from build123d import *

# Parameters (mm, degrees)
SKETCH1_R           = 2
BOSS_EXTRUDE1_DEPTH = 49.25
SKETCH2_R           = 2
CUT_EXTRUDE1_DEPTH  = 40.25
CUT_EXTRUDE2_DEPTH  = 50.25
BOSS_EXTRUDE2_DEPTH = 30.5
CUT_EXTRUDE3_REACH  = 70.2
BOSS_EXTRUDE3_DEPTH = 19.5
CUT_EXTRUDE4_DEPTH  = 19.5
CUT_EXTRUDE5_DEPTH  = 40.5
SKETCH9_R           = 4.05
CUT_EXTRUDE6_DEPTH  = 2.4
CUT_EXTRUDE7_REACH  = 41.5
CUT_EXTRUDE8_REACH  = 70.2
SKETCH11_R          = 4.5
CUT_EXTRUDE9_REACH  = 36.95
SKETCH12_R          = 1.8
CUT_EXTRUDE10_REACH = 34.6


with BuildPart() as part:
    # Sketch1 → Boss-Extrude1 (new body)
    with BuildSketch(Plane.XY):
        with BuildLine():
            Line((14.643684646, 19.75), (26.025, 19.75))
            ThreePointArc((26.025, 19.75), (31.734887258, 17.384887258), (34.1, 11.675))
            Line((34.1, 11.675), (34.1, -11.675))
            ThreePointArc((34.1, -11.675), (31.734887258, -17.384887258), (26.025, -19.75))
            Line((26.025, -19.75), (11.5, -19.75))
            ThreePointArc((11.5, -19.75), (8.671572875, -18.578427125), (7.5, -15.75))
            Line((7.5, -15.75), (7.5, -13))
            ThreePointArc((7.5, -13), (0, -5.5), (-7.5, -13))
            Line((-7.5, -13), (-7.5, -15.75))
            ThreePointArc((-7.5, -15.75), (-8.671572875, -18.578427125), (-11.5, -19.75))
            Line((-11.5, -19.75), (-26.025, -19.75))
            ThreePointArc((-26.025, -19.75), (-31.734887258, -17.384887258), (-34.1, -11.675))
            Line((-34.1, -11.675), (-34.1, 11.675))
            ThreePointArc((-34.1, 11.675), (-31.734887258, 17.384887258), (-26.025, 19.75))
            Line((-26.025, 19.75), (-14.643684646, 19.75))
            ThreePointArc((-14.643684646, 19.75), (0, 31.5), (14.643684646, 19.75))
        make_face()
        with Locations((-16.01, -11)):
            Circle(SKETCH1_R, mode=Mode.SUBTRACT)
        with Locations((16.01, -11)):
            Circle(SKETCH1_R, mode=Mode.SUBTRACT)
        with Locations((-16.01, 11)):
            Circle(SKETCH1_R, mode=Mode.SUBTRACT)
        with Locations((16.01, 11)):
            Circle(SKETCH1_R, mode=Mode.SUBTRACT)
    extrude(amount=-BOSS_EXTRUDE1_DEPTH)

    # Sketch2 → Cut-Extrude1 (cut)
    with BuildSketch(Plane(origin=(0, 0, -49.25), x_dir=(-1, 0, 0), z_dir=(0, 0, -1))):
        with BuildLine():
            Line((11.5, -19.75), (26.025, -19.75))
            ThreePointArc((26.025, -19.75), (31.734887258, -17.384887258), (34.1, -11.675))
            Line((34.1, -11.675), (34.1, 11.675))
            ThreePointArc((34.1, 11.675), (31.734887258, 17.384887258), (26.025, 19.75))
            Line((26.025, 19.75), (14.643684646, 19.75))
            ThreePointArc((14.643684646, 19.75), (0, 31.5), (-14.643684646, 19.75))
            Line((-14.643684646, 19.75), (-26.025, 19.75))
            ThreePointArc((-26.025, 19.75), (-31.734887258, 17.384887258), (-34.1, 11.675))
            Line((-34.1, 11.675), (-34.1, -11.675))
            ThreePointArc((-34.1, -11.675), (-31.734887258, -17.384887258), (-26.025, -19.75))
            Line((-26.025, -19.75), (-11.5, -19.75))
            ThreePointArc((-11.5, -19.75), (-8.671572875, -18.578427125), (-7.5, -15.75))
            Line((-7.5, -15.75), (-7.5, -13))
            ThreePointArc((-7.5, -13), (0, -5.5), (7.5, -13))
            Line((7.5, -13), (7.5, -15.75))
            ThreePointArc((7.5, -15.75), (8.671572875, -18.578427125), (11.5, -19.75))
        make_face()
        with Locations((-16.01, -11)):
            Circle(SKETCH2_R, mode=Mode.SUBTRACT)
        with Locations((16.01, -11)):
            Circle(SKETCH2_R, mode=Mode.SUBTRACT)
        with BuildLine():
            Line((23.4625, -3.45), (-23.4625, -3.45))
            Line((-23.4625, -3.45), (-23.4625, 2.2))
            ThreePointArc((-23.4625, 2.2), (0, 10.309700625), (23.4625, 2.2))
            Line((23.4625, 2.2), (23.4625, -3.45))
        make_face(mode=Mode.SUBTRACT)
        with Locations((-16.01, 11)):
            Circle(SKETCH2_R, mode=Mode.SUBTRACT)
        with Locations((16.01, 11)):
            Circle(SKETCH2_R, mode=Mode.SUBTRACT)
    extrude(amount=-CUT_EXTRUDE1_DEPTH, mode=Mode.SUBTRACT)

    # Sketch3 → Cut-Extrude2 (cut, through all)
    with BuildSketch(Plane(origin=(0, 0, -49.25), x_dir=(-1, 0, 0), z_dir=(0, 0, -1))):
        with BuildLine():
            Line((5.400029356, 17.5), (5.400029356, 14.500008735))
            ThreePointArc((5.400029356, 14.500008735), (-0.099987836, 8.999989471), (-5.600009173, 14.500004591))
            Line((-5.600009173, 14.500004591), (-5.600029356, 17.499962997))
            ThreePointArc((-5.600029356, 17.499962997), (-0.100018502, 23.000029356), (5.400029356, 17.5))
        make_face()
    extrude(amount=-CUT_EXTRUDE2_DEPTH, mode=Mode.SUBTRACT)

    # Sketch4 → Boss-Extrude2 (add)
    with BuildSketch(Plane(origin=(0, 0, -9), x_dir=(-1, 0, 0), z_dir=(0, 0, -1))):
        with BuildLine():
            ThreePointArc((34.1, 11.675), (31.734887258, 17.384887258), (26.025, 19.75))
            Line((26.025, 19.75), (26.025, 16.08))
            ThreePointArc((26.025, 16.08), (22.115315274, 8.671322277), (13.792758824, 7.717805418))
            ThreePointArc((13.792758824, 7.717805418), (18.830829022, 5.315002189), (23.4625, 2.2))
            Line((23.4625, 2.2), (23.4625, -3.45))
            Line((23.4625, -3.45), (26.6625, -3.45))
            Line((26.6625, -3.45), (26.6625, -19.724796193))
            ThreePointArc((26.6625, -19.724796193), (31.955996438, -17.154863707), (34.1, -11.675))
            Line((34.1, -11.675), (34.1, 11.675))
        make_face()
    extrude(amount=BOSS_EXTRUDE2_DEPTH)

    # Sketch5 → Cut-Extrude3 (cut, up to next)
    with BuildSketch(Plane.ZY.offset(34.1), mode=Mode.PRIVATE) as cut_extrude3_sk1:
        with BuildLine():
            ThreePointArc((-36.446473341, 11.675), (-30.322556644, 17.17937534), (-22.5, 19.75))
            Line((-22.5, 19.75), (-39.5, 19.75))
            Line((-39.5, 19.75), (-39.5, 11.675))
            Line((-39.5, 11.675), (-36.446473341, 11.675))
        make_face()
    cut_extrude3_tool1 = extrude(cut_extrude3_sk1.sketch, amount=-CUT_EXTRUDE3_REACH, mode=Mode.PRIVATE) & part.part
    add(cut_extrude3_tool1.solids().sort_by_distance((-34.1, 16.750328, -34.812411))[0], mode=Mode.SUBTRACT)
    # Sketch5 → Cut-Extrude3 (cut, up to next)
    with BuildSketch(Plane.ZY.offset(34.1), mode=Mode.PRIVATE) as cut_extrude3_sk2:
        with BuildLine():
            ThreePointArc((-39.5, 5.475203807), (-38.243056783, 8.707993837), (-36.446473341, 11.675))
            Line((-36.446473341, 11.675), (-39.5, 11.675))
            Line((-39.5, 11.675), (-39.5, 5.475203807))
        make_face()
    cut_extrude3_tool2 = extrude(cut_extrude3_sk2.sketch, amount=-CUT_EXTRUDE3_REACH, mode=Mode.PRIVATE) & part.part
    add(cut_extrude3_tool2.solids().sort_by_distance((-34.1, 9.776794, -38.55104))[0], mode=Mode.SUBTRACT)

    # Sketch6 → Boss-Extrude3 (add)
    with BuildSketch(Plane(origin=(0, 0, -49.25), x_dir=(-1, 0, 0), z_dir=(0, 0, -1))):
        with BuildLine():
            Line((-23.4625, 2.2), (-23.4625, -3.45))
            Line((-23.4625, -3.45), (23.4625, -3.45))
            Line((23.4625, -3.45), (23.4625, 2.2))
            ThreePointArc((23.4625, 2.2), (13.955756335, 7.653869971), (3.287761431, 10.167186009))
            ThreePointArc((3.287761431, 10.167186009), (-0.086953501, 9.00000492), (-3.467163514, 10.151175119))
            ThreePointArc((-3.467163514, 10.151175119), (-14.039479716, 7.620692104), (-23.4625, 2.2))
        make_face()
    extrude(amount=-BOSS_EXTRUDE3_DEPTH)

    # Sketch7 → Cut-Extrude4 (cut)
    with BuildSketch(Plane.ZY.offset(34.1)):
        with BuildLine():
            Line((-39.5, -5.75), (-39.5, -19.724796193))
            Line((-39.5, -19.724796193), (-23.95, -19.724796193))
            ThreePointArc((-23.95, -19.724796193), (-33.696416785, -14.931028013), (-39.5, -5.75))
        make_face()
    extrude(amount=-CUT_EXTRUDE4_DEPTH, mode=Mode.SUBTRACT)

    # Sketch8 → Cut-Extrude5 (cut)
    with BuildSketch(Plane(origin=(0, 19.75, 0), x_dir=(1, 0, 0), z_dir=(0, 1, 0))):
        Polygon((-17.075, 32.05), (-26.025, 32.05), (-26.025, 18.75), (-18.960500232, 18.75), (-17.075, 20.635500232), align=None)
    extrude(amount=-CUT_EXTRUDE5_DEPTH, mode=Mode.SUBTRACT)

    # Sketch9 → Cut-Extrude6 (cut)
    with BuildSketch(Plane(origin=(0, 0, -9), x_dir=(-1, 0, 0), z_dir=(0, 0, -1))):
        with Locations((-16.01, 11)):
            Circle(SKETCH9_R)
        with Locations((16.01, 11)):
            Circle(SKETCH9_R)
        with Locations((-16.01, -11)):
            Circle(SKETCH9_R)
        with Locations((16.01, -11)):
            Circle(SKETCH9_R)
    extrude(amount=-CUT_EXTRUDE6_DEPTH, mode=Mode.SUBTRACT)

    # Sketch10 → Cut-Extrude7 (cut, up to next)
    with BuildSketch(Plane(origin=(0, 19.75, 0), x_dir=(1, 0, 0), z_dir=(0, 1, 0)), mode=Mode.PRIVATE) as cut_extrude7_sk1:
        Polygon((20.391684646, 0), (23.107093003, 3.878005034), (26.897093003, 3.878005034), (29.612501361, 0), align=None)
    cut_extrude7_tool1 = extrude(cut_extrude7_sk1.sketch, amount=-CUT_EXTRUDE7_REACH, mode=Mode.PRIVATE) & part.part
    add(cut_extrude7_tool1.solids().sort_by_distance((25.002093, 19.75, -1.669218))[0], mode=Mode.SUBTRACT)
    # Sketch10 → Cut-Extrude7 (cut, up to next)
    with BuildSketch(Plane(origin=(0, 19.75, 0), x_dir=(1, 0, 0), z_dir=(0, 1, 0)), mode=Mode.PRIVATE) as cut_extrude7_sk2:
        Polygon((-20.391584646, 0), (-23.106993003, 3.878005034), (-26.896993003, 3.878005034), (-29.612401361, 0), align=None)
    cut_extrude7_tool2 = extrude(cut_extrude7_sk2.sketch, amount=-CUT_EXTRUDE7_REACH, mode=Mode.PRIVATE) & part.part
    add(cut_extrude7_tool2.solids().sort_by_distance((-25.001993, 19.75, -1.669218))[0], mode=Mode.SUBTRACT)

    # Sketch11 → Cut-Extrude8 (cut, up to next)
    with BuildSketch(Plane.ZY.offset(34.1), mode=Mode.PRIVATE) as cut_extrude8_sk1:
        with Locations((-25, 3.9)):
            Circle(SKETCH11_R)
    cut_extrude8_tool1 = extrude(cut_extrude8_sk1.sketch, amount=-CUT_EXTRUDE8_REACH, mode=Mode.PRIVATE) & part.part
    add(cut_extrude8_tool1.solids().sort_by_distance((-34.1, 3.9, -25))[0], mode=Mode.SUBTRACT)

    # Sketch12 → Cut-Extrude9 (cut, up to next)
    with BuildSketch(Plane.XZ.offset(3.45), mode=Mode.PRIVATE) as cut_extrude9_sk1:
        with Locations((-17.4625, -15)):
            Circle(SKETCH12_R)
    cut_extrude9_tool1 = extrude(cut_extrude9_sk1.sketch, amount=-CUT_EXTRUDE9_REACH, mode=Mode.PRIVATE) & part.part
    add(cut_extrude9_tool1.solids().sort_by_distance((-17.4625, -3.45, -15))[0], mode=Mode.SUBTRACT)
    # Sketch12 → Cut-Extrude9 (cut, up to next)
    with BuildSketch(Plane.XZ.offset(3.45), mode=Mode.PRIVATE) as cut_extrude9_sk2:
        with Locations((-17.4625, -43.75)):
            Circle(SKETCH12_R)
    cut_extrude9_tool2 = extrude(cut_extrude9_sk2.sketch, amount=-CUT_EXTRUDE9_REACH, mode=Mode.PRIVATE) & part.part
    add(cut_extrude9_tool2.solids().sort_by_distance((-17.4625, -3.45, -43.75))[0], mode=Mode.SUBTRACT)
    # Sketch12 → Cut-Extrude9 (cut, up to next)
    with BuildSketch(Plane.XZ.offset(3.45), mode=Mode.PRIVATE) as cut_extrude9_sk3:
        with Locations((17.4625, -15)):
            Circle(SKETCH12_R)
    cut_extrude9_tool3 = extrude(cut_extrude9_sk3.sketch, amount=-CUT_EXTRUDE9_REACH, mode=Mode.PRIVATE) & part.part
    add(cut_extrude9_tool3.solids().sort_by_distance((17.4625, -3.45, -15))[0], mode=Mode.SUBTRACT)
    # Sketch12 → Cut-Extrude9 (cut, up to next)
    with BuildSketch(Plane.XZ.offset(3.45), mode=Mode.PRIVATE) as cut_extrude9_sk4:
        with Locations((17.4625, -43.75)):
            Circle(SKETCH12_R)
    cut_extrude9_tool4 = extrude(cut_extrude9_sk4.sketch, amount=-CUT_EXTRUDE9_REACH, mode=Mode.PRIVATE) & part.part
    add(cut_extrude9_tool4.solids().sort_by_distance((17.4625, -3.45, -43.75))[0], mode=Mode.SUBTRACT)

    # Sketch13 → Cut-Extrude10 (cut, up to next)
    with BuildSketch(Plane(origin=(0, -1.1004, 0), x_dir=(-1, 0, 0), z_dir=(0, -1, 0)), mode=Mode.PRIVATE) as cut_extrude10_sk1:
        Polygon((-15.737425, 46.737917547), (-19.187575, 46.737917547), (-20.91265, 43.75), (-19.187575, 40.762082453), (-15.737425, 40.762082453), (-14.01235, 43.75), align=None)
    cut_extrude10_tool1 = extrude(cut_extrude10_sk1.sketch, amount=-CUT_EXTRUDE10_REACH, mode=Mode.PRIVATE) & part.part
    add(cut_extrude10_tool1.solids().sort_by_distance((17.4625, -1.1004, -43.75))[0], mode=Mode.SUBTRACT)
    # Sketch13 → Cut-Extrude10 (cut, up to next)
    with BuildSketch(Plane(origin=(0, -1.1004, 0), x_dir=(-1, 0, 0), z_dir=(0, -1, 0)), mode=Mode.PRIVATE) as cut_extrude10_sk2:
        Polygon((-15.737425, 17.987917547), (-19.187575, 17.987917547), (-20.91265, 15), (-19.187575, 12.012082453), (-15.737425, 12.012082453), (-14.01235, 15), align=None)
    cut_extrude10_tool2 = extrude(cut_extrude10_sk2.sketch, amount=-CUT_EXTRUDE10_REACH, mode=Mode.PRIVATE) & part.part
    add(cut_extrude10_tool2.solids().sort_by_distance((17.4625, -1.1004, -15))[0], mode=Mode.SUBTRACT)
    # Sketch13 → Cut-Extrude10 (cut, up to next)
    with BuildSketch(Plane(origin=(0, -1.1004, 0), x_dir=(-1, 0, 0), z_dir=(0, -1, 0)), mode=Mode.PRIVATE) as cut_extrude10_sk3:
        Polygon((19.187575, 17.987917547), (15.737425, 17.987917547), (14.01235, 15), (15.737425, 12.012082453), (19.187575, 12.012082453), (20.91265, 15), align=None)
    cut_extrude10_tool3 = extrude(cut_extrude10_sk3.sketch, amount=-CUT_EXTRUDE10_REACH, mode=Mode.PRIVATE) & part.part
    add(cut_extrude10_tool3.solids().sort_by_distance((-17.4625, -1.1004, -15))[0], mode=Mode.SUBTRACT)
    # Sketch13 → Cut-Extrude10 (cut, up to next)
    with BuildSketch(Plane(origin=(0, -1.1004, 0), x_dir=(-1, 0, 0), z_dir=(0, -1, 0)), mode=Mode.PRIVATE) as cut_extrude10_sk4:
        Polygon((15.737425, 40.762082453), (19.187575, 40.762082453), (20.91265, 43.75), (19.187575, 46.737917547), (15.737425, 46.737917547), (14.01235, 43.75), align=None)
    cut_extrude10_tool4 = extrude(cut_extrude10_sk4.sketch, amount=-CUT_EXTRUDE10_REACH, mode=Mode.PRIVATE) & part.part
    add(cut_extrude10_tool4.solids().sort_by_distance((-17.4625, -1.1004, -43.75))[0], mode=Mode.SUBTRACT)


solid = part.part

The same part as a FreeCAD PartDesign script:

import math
import FreeCAD as App
import Part
import Sketcher
from FreeCAD import Vector
Q = App.Units.Quantity

doc = App.newDocument("Part")
body = doc.addObject("PartDesign::Body", "Body")

sketch1 = doc.addObject("Sketcher::SketchObject", "Sketch")
body.addObject(sketch1)
sketch1.AttachmentSupport = (doc.XY_Plane, [""])
sketch1.MapMode = "FlatFace"
sketch1.addGeometry([
    Part.LineSegment(Vector(26, 19.8, 0), Vector(14.6, 19.8, 0)),
    Part.ArcOfCircle(Part.Circle(Vector(0, 16.5, 0), Vector(0, 0, 1), 15), math.radians(13), math.radians(167)),
    Part.LineSegment(Vector(-14.6, 19.8, 0), Vector(-26, 19.8, 0)),
    Part.ArcOfCircle(Part.Circle(Vector(-26, 11.7, 0), Vector(0, 0, 1), 8.1), math.radians(90), math.radians(180)),
    Part.LineSegment(Vector(-34.1, 11.7, 0), Vector(-34.1, -11.7, 0)),
    Part.ArcOfCircle(Part.Circle(Vector(-26, -11.7, 0), Vector(0, 0, 1), 8.1), math.radians(180), math.radians(270)),
    Part.LineSegment(Vector(-26, -19.8, 0), Vector(-11.5, -19.8, 0)),
    Part.ArcOfCircle(Part.Circle(Vector(-11.5, -15.8, 0), Vector(0, 0, 1), 4), math.radians(-90), math.radians(0)),
    Part.LineSegment(Vector(-7.5, -15.8, 0), Vector(-7.5, -13, 0)),
    Part.ArcOfCircle(Part.Circle(Vector(0, -13, 0), Vector(0, 0, 1), 7.5), math.radians(0), math.radians(180)),
    Part.LineSegment(Vector(7.5, -13, 0), Vector(7.5, -15.8, 0)),
    Part.ArcOfCircle(Part.Circle(Vector(11.5, -15.8, 0), Vector(0, 0, 1), 4), math.radians(180), math.radians(270)),
    Part.LineSegment(Vector(11.5, -19.8, 0), Vector(26, -19.8, 0)),
    Part.ArcOfCircle(Part.Circle(Vector(26, -11.7, 0), Vector(0, 0, 1), 8.1), math.radians(-90), math.radians(0)),
    Part.LineSegment(Vector(34.1, -11.7, 0), Vector(34.1, 11.7, 0)),
    Part.ArcOfCircle(Part.Circle(Vector(26, 11.7, 0), Vector(0, 0, 1), 8.1), math.radians(0), math.radians(90)),
    Part.Circle(Vector(16, -11, 0), Vector(0, 0, 1), 2),
    Part.Circle(Vector(-16, -11, 0), Vector(0, 0, 1), 2),
    Part.Circle(Vector(16, 11, 0), Vector(0, 0, 1), 2),
    Part.Circle(Vector(-16, 11, 0), Vector(0, 0, 1), 2),
], False)
sketch1.addConstraint([
    Sketcher.Constraint("Coincident", 0, 2, 1, 1),
    Sketcher.Constraint("Coincident", 1, 2, 2, 1),
    Sketcher.Constraint("Tangent", 2, 2, 3, 1),
    Sketcher.Constraint("Tangent", 3, 2, 4, 1),
    Sketcher.Constraint("Tangent", 4, 2, 5, 1),
    Sketcher.Constraint("Tangent", 5, 2, 6, 1),
    Sketcher.Constraint("Tangent", 6, 2, 7, 1),
    Sketcher.Constraint("Tangent", 7, 2, 8, 1),
    Sketcher.Constraint("Tangent", 8, 2, 9, 2),
    Sketcher.Constraint("Tangent", 9, 1, 10, 1),
    Sketcher.Constraint("Tangent", 10, 2, 11, 1),
    Sketcher.Constraint("Tangent", 11, 2, 12, 1),
    Sketcher.Constraint("Tangent", 12, 2, 13, 1),
    Sketcher.Constraint("Tangent", 13, 2, 14, 1),
    Sketcher.Constraint("Tangent", 14, 2, 15, 1),
    Sketcher.Constraint("Tangent", 15, 2, 0, 1),
    Sketcher.Constraint("Horizontal", 0),
    Sketcher.Constraint("Horizontal", 2),
    Sketcher.Constraint("Vertical", 4),
    Sketcher.Constraint("Horizontal", 6),
    Sketcher.Constraint("Vertical", 8),
    Sketcher.Constraint("Vertical", 10),
    Sketcher.Constraint("Horizontal", 12),
    Sketcher.Constraint("Vertical", 14),
    Sketcher.Constraint("Equal", 3, 5),
    Sketcher.Constraint("Equal", 7, 11),
    Sketcher.Constraint("Equal", 5, 13),
    Sketcher.Constraint("Equal", 13, 15),
    Sketcher.Constraint("Equal", 16, 17),
    Sketcher.Constraint("Equal", 17, 18),
    Sketcher.Constraint("Equal", 18, 19),
    Sketcher.Constraint("Symmetric", 3, 3, 13, 3, -1, 1),
    Sketcher.Constraint("Symmetric", 17, 3, 18, 3, -1, 1),
    Sketcher.Constraint("Symmetric", 16, 3, 19, 3, -1, 1),
    Sketcher.Constraint("Symmetric", 7, 3, 11, 3, -2),
    Sketcher.Constraint("Symmetric", 16, 3, 17, 3, -2),
    Sketcher.Constraint("Symmetric", 0, 2, 1, 2, -2),
    Sketcher.Constraint("Diameter", 16, 4.0),
    Sketcher.Constraint("Radius", 1, 15.0),
    Sketcher.Constraint("Radius", 7, 4.0),
    Sketcher.Constraint("Radius", 9, 7.5),
    Sketcher.Constraint("DistanceY", 9, 3, -1, 1, 13.0),
    Sketcher.Constraint("DistanceY", 16, 3, -1, 1, 11.0),
    Sketcher.Constraint("Radius", 3, 8.075),
    Sketcher.Constraint("DistanceY", 4, 2, 4, 1, 23.35),
    Sketcher.Constraint("DistanceY", -1, 1, 1, 3, 16.5),
    Sketcher.Constraint("DistanceX", 3, 2, -1, 1, 34.1),
    Sketcher.Constraint("DistanceX", -1, 1, 16, 3, 16.01),
])
pad1 = doc.addObject("PartDesign::Pad", "Pad")
body.addObject(pad1)
pad1.Profile = sketch1
pad1.Length = 49.25
pad1.Reversed = True

sketch2 = doc.addObject("Sketcher::SketchObject", "Sketch001")
body.addObject(sketch2)
sketch2.AttachmentSupport = (doc.XY_Plane, [""])
sketch2.MapMode = "FlatFace"
sketch2.AttachmentOffset = App.Placement(Vector(0, 0, -49.25), App.Rotation())
sketch2.addGeometry([
    Part.LineSegment(Vector(-11.5, -19.8, 0), Vector(-26, -19.8, 0)),
    Part.ArcOfCircle(Part.Circle(Vector(-26, -11.7, 0), Vector(0, 0, 1), 8.1), math.radians(180), math.radians(270)),
    Part.LineSegment(Vector(-34.1, -11.7, 0), Vector(-34.1, 11.7, 0)),
    Part.ArcOfCircle(Part.Circle(Vector(-26, 11.7, 0), Vector(0, 0, 1), 8.1), math.radians(90), math.radians(180)),
    Part.LineSegment(Vector(-26, 19.8, 0), Vector(-14.6, 19.8, 0)),
    Part.ArcOfCircle(Part.Circle(Vector(0, 16.5, 0), Vector(0, 0, 1), 15), math.radians(13), math.radians(167)),
    Part.LineSegment(Vector(14.6, 19.8, 0), Vector(26, 19.8, 0)),
    Part.ArcOfCircle(Part.Circle(Vector(26, 11.7, 0), Vector(0, 0, 1), 8.1), math.radians(0), math.radians(90)),
    Part.LineSegment(Vector(34.1, 11.7, 0), Vector(34.1, -11.7, 0)),
    Part.ArcOfCircle(Part.Circle(Vector(26, -11.7, 0), Vector(0, 0, 1), 8.1), math.radians(-90), math.radians(0)),
    Part.LineSegment(Vector(26, -19.8, 0), Vector(11.5, -19.8, 0)),
    Part.ArcOfCircle(Part.Circle(Vector(11.5, -15.8, 0), Vector(0, 0, 1), 4), math.radians(180), math.radians(270)),
    Part.LineSegment(Vector(7.5, -15.8, 0), Vector(7.5, -13, 0)),
    Part.ArcOfCircle(Part.Circle(Vector(0, -13, 0), Vector(0, 0, 1), 7.5), math.radians(0), math.radians(180)),
    Part.LineSegment(Vector(-7.5, -13, 0), Vector(-7.5, -15.8, 0)),
    Part.ArcOfCircle(Part.Circle(Vector(-11.5, -15.8, 0), Vector(0, 0, 1), 4), math.radians(-90), math.radians(0)),
    Part.Circle(Vector(16, -11, 0), Vector(0, 0, 1), 2),
    Part.Circle(Vector(-16, -11, 0), Vector(0, 0, 1), 2),
    Part.LineSegment(Vector(-23.5, 2.2, 0), Vector(-23.5, -3.5, 0)),
    Part.LineSegment(Vector(-23.5, -3.5, 0), Vector(23.5, -3.5, 0)),
    Part.LineSegment(Vector(23.5, -3.5, 0), Vector(23.5, 2.2, 0)),
    Part.ArcOfCircle(Part.Circle(Vector(0, -27.7, 0), Vector(0, 0, 1), 38), math.radians(52), math.radians(128)),
    Part.Circle(Vector(16, 11, 0), Vector(0, 0, 1), 2),
    Part.Circle(Vector(-16, 11, 0), Vector(0, 0, 1), 2),
], False)
sketch2.addConstraint([
    Sketcher.Constraint("Tangent", 0, 2, 1, 2),
    Sketcher.Constraint("Tangent", 1, 1, 2, 1),
    Sketcher.Constraint("Tangent", 2, 2, 3, 2),
    Sketcher.Constraint("Tangent", 3, 1, 4, 1),
    Sketcher.Constraint("Coincident", 4, 2, 5, 2),
    Sketcher.Constraint("Coincident", 5, 1, 6, 1),
    Sketcher.Constraint("Tangent", 6, 2, 7, 2),
    Sketcher.Constraint("Tangent", 7, 1, 8, 1),
    Sketcher.Constraint("Tangent", 8, 2, 9, 2),
    Sketcher.Constraint("Tangent", 9, 1, 10, 1),
    Sketcher.Constraint("Tangent", 10, 2, 11, 2),
    Sketcher.Constraint("Tangent", 11, 1, 12, 1),
    Sketcher.Constraint("Tangent", 12, 2, 13, 1),
    Sketcher.Constraint("Tangent", 13, 2, 14, 1),
    Sketcher.Constraint("Tangent", 14, 2, 15, 2),
    Sketcher.Constraint("Tangent", 15, 1, 0, 1),
    Sketcher.Constraint("Coincident", 18, 2, 19, 1),
    Sketcher.Constraint("Coincident", 19, 2, 20, 1),
    Sketcher.Constraint("Coincident", 20, 2, 21, 1),
    Sketcher.Constraint("Coincident", 21, 2, 18, 1),
    Sketcher.Constraint("Horizontal", 0),
    Sketcher.Constraint("Vertical", 2),
    Sketcher.Constraint("Horizontal", 4),
    Sketcher.Constraint("Horizontal", 6),
    Sketcher.Constraint("Vertical", 8),
    Sketcher.Constraint("Horizontal", 10),
    Sketcher.Constraint("Vertical", 12),
    Sketcher.Constraint("Vertical", 14),
    Sketcher.Constraint("Vertical", 18),
    Sketcher.Constraint("Horizontal", 19),
    Sketcher.Constraint("Vertical", 20),
    Sketcher.Constraint("Equal", 1, 3),
    Sketcher.Constraint("Equal", 3, 7),
    Sketcher.Constraint("Equal", 7, 9),
    Sketcher.Constraint("Equal", 11, 15),
    Sketcher.Constraint("Equal", 16, 17),
    Sketcher.Constraint("Equal", 17, 22),
    Sketcher.Constraint("Equal", 22, 23),
    Sketcher.Constraint("Symmetric", 1, 3, 7, 3, -1, 1),
    Sketcher.Constraint("Symmetric", 17, 3, 22, 3, -1, 1),
    Sketcher.Constraint("Symmetric", 16, 3, 23, 3, -1, 1),
    Sketcher.Constraint("Symmetric", 11, 3, 15, 3, -2),
    Sketcher.Constraint("Symmetric", 16, 3, 17, 3, -2),
    Sketcher.Constraint("Symmetric", 4, 2, 5, 1, -2),
    Sketcher.Constraint("Symmetric", 20, 2, 21, 2, -2),
    Sketcher.Constraint("Diameter", 16, 4.0),
    Sketcher.Constraint("Radius", 5, 15.0),
    Sketcher.Constraint("Radius", 11, 4.0),
    Sketcher.Constraint("Radius", 13, 7.5),
    Sketcher.Constraint("DistanceY", 13, 3, -1, 1, 13.0),
    Sketcher.Constraint("DistanceY", 16, 3, -1, 1, 11.0),
    Sketcher.Constraint("Radius", 1, 8.075),
    Sketcher.Constraint("Radius", 21, 37.995),
    Sketcher.Constraint("DistanceY", 2, 1, 2, 2, 23.35),
    Sketcher.Constraint("DistanceY", 18, 2, 18, 1, 5.65),
    Sketcher.Constraint("DistanceY", -1, 1, 5, 3, 16.5),
    Sketcher.Constraint("DistanceX", 1, 1, -1, 1, 34.1),
    Sketcher.Constraint("DistanceY", -1, 1, 20, 2, 2.2),
    Sketcher.Constraint("DistanceX", 19, 1, 19, 2, 46.925),
    Sketcher.Constraint("DistanceX", -1, 1, 16, 3, 16.01),
])
pocket1 = doc.addObject("PartDesign::Pocket", "Pocket")
body.addObject(pocket1)
pocket1.Profile = sketch2
pocket1.Length = 40.25
pocket1.Reversed = True

sketch3 = doc.addObject("Sketcher::SketchObject", "Sketch002")
body.addObject(sketch3)
sketch3.AttachmentSupport = (doc.XY_Plane, [""])
sketch3.MapMode = "FlatFace"
sketch3.AttachmentOffset = App.Placement(Vector(0, 0, -49.25), App.Rotation())
sketch3.addGeometry([
    Part.LineSegment(Vector(-5.4, 14.5, 0), Vector(-5.4, 17.5, 0)),
    Part.ArcOfCircle(Part.Circle(Vector(0.1, 17.5, 0), Vector(0, 0, 1), 5.5), math.radians(0), math.radians(180)),
    Part.LineSegment(Vector(5.6, 17.5, 0), Vector(5.6, 14.5, 0)),
    Part.ArcOfCircle(Part.Circle(Vector(0.1, 14.5, 0), Vector(0, 0, 1), 5.5), math.radians(-180), math.radians(0)),
], False)
sketch3.addConstraint([
    Sketcher.Constraint("Tangent", 0, 2, 1, 2),
    Sketcher.Constraint("Tangent", 1, 1, 2, 1),
    Sketcher.Constraint("Coincident", 2, 2, 3, 2),
    Sketcher.Constraint("Tangent", 3, 1, 0, 1),
    Sketcher.Constraint("Vertical", 0),
    Sketcher.Constraint("DistanceX", -1, 1, 1, 3, 0.1),
    Sketcher.Constraint("DistanceY", -1, 1, 1, 3, 17.5),
    Sketcher.Constraint("Radius", 1, 5.500029),
    Sketcher.Constraint("Radius", 3, 5.500019),
    Sketcher.Constraint("DistanceY", 0, 1, 0, 2, 2.999991),
    Sketcher.Constraint("Distance", 2, 2.999958),
])
pocket2 = doc.addObject("PartDesign::Pocket", "Pocket001")
body.addObject(pocket2)
pocket2.Profile = sketch3
pocket2.Type = "ThroughAll"
pocket2.Reversed = True

sketch4 = doc.addObject("Sketcher::SketchObject", "Sketch003")
body.addObject(sketch4)
sketch4.AttachmentSupport = (doc.XY_Plane, [""])
sketch4.MapMode = "FlatFace"
sketch4.AttachmentOffset = App.Placement(Vector(0, 0, -9), App.Rotation())
sketch4.addGeometry([
    Part.ArcOfCircle(Part.Circle(Vector(-26, 11.7, 0), Vector(0, 0, 1), 8.1), math.radians(90), math.radians(180)),
    Part.LineSegment(Vector(-26, 19.8, 0), Vector(-26, 16.1, 0)),
    Part.ArcOfCircle(Part.Circle(Vector(-17.1, 16.1, 0), Vector(0, 0, 1), 9), math.radians(180), math.radians(291)),
    Part.ArcOfCircle(Part.Circle(Vector(0, -27.7, 0), Vector(0, 0, 1), 38), math.radians(111.29), math.radians(128.13)),
    Part.LineSegment(Vector(-23.5, 2.2, 0), Vector(-23.5, -3.5, 0)),
    Part.LineSegment(Vector(-23.5, -3.5, 0), Vector(-26.7, -3.5, 0)),
    Part.LineSegment(Vector(-26.7, -3.5, 0), Vector(-26.7, -19.7, 0)),
    Part.ArcOfCircle(Part.Circle(Vector(-26, -11.7, 0), Vector(0, 0, 1), 8.1), math.radians(-180), math.radians(-95)),
    Part.LineSegment(Vector(-34.1, -11.7, 0), Vector(-34.1, 11.7, 0)),
], False)
sketch4.addConstraint([
    Sketcher.Constraint("Coincident", 0, 1, 1, 1),
    Sketcher.Constraint("Tangent", 1, 2, 2, 1),
    Sketcher.Constraint("Tangent", 2, 2, 3, 1),
    Sketcher.Constraint("Coincident", 3, 2, 4, 1),
    Sketcher.Constraint("Coincident", 4, 2, 5, 1),
    Sketcher.Constraint("Coincident", 5, 2, 6, 1),
    Sketcher.Constraint("Coincident", 6, 2, 7, 2),
    Sketcher.Constraint("Tangent", 7, 1, 8, 1),
    Sketcher.Constraint("Tangent", 8, 2, 0, 2),
    Sketcher.Constraint("Vertical", 1),
    Sketcher.Constraint("Vertical", 4),
    Sketcher.Constraint("Horizontal", 5),
    Sketcher.Constraint("Vertical", 6),
    Sketcher.Constraint("Vertical", 8),
    Sketcher.Constraint("Equal", 0, 7),
    Sketcher.Constraint("PointOnObject", 3, 3, -2),
    Sketcher.Constraint("Vertical", 7, 3, 0, 1),
    Sketcher.Constraint("DistanceX", 5, 2, 5, 1, 3.2),
    Sketcher.Constraint("Radius", 0, 8.075),
    Sketcher.Constraint("Radius", 3, 37.995),
    Sketcher.Constraint("DistanceY", 1, 2, 1, 1, 3.67),
    Sketcher.Constraint("DistanceY", 4, 2, 4, 1, 5.65),
    Sketcher.Constraint("DistanceY", 8, 1, 8, 2, 23.35),
    Sketcher.Constraint("DistanceY", -1, 1, 3, 2, 2.2),
    Sketcher.Constraint("DistanceX", 7, 1, -1, 1, 34.1),
    Sketcher.Constraint("Radius", 2, 8.974399),
    Sketcher.Constraint("DistanceY", -1, 1, 2, 3, 16.08),
])
pad2 = doc.addObject("PartDesign::Pad", "Pad001")
body.addObject(pad2)
pad2.Profile = sketch4
pad2.Length = 30.5
pad2.Reversed = True

sketch5 = doc.addObject("Sketcher::SketchObject", "Sketch004")
body.addObject(sketch5)
sketch5.AttachmentSupport = (doc.YZ_Plane, [""])
sketch5.MapMode = "FlatFace"
sketch5.AttachmentOffset = App.Placement(Vector(0, 0, -34.1), App.Rotation())
sketch5.addGeometry([
    Part.ArcOfCircle(Part.Circle(Vector(-0.1, -20.3, 0), Vector(0, 0, 1), 20), math.radians(-54), math.radians(-6)),
    Part.LineSegment(Vector(19.8, -22.5, 0), Vector(19.8, -39.5, 0)),
    Part.LineSegment(Vector(19.8, -39.5, 0), Vector(11.7, -39.5, 0)),
    Part.LineSegment(Vector(11.7, -39.5, 0), Vector(11.7, -36.4, 0)),
], False)
sketch5.addConstraint([
    Sketcher.Constraint("Coincident", 0, 2, 1, 1),
    Sketcher.Constraint("Coincident", 1, 2, 2, 1),
    Sketcher.Constraint("Coincident", 2, 2, 3, 1),
    Sketcher.Constraint("Coincident", 3, 2, 0, 1),
    Sketcher.Constraint("Vertical", 1),
    Sketcher.Constraint("Horizontal", 2),
    Sketcher.Constraint("Vertical", 3),
    Sketcher.Constraint("Radius", 0, 20.0),
    Sketcher.Constraint("DistanceY", 1, 2, 1, 1, 17.0),
    Sketcher.Constraint("DistanceY", 0, 2, -1, 1, 22.5),
    Sketcher.Constraint("DistanceX", 2, 2, 2, 1, 8.075),
    Sketcher.Constraint("DistanceX", -1, 1, 0, 2, 19.75),
    Sketcher.Constraint("DistanceY", 3, 1, 3, 2, 3.053527),
])
pocket3 = doc.addObject("PartDesign::Pocket", "Pocket002")
body.addObject(pocket3)
pocket3.Profile = sketch5
pocket3.Length = 9.23046
pocket3.Reversed = True

sketch6 = doc.addObject("Sketcher::SketchObject", "Sketch005")
body.addObject(sketch6)
sketch6.AttachmentSupport = (doc.YZ_Plane, [""])
sketch6.MapMode = "FlatFace"
sketch6.AttachmentOffset = App.Placement(Vector(0, 0, -34.1), App.Rotation())
sketch6.addGeometry([
    Part.ArcOfCircle(Part.Circle(Vector(-0.1, -20.3, 0), Vector(0, 0, 1), 20), math.radians(-73.73), math.radians(-53.83)),
    Part.LineSegment(Vector(11.7, -36.4, 0), Vector(11.7, -39.5, 0)),
    Part.LineSegment(Vector(11.7, -39.5, 0), Vector(5.5, -39.5, 0)),
], False)
sketch6.addConstraint([
    Sketcher.Constraint("Coincident", 0, 2, 1, 1),
    Sketcher.Constraint("Coincident", 1, 2, 2, 1),
    Sketcher.Constraint("Coincident", 2, 2, 0, 1),
    Sketcher.Constraint("Vertical", 1),
    Sketcher.Constraint("Horizontal", 2),
    Sketcher.Constraint("Radius", 0, 20.0),
    Sketcher.Constraint("DistanceY", 1, 2, -1, 1, 39.5),
    Sketcher.Constraint("DistanceX", -1, 1, 0, 2, 11.675),
    Sketcher.Constraint("DistanceX", 2, 2, 2, 1, 6.199796),
    Sketcher.Constraint("DistanceY", 1, 2, 1, 1, 3.053527),
])
pocket4 = doc.addObject("PartDesign::Pocket", "Pocket003")
body.addObject(pocket4)
pocket4.Profile = sketch6
pocket4.Length = 52.647265
pocket4.Reversed = True

sketch7 = doc.addObject("Sketcher::SketchObject", "Sketch006")
body.addObject(sketch7)
sketch7.AttachmentSupport = (doc.XY_Plane, [""])
sketch7.MapMode = "FlatFace"
sketch7.AttachmentOffset = App.Placement(Vector(0, 0, -49.25), App.Rotation())
sketch7.addGeometry([
    Part.LineSegment(Vector(23, 2, 0), Vector(23, -3, 0)),
    Part.LineSegment(Vector(23, -3, 0), Vector(-23, -3, 0)),
    Part.LineSegment(Vector(-23, -3, 0), Vector(-23, 2, 0)),
    Part.ArcOfCircle(Part.Circle(Vector(0, -28, 0), Vector(0, 0, 1), 38), math.radians(95), math.radians(128)),
    Part.ArcOfCircle(Part.Circle(Vector(0, 15, 0), Vector(0, 0, 1), 6), math.radians(-128), math.radians(-52)),
    Part.ArcOfCircle(Part.Circle(Vector(0, -28, 0), Vector(0, 0, 1), 38), math.radians(52), math.radians(85)),
], False)
sketch7.addConstraint([
    Sketcher.Constraint("Coincident", 0, 2, 1, 1),
    Sketcher.Constraint("Coincident", 1, 2, 2, 1),
    Sketcher.Constraint("Coincident", 2, 2, 3, 2),
    Sketcher.Constraint("Coincident", 3, 1, 4, 1),
    Sketcher.Constraint("Coincident", 4, 2, 5, 2),
    Sketcher.Constraint("Coincident", 5, 1, 0, 1),
    Sketcher.Constraint("Vertical", 0),
    Sketcher.Constraint("Horizontal", 1),
    Sketcher.Constraint("Vertical", 2),
    Sketcher.Constraint("Coincident", 5, 3, 3, 3),
    Sketcher.Constraint("Equal", 3, 5),
    Sketcher.Constraint("Symmetric", 2, 2, 5, 1, -2),
    Sketcher.Constraint("Radius", 3, 37.995),
    Sketcher.Constraint("DistanceY", 0, 2, 0, 1, 5.65),
    Sketcher.Constraint("DistanceY", -1, 1, 2, 2, 2.2),
    Sketcher.Constraint("DistanceX", 1, 2, 1, 1, 46.925),
    Sketcher.Constraint("Radius", 4, 5.500019),
    Sketcher.Constraint("DistanceX", -1, 1, 4, 3, 0.09999),
    Sketcher.Constraint("DistanceY", -1, 1, 4, 3, 14.500009),
])
pad3 = doc.addObject("PartDesign::Pad", "Pad002")
body.addObject(pad3)
pad3.Profile = sketch7
pad3.Length = 19.5

sketch8 = doc.addObject("Sketcher::SketchObject", "Sketch007")
body.addObject(sketch8)
sketch8.AttachmentSupport = (doc.YZ_Plane, [""])
sketch8.MapMode = "FlatFace"
sketch8.AttachmentOffset = App.Placement(Vector(0, 0, -34.1), App.Rotation())
sketch8.addGeometry([
    Part.LineSegment(Vector(-6, -40, 0), Vector(-20, -40, 0)),
    Part.LineSegment(Vector(-20, -40, 0), Vector(-20, -24, 0)),
    Part.ArcOfCircle(Part.Circle(Vector(0, -20, 0), Vector(0, 0, 1), 20), math.radians(-170), math.radians(-107)),
], False)
sketch8.addConstraint([
    Sketcher.Constraint("Coincident", 0, 2, 1, 1),
    Sketcher.Constraint("Coincident", 1, 2, 2, 1),
    Sketcher.Constraint("Coincident", 2, 2, 0, 1),
    Sketcher.Constraint("Horizontal", 0),
    Sketcher.Constraint("Vertical", 1),
    Sketcher.Constraint("Radius", 2, 20.0),
    Sketcher.Constraint("DistanceY", 1, 1, 1, 2, 15.55),
    Sketcher.Constraint("DistanceY", 0, 2, -1, 1, 39.5),
    Sketcher.Constraint("DistanceX", 2, 2, -1, 1, 5.75),
    Sketcher.Constraint("DistanceX", 0, 2, 0, 1, 13.974796),
])
pocket5 = doc.addObject("PartDesign::Pocket", "Pocket004")
body.addObject(pocket5)
pocket5.Profile = sketch8
pocket5.Length = 19.5
pocket5.Reversed = True

sketch9 = doc.addObject("Sketcher::SketchObject", "Sketch008")
body.addObject(sketch9)
sketch9.AttachmentSupport = (doc.XZ_Plane, [""])
sketch9.MapMode = "FlatFace"
sketch9.AttachmentOffset = App.Placement(Vector(0, 0, -19.75), App.Rotation())
sketch9.addGeometry([
    Part.LineSegment(Vector(-17.1, -32, 0), Vector(-26, -32, 0)),
    Part.LineSegment(Vector(-26, -32, 0), Vector(-26, -18.8, 0)),
    Part.LineSegment(Vector(-26, -18.8, 0), Vector(-19, -18.8, 0)),
    Part.LineSegment(Vector(-19, -18.8, 0), Vector(-17.1, -20.6, 0)),
    Part.LineSegment(Vector(-17.1, -20.6, 0), Vector(-17.1, -32, 0)),
], False)
sketch9.addConstraint([
    Sketcher.Constraint("Coincident", 0, 2, 1, 1),
    Sketcher.Constraint("Coincident", 1, 2, 2, 1),
    Sketcher.Constraint("Coincident", 2, 2, 3, 1),
    Sketcher.Constraint("Coincident", 3, 2, 4, 1),
    Sketcher.Constraint("Coincident", 4, 2, 0, 1),
    Sketcher.Constraint("Horizontal", 0),
    Sketcher.Constraint("Vertical", 1),
    Sketcher.Constraint("Horizontal", 2),
    Sketcher.Constraint("Vertical", 4),
    Sketcher.Constraint("Angle", 3, Q("-45 deg")),
    Sketcher.Constraint("DistanceY", 1, 1, 1, 2, 13.3),
    Sketcher.Constraint("DistanceX", 0, 2, 0, 1, 8.95),
    Sketcher.Constraint("DistanceY", 0, 2, -1, 1, 32.05),
    Sketcher.Constraint("DistanceX", 2, 1, 2, 2, 7.0645),
    Sketcher.Constraint("DistanceX", 0, 2, -1, 1, 26.025),
])
pocket6 = doc.addObject("PartDesign::Pocket", "Pocket005")
body.addObject(pocket6)
pocket6.Profile = sketch9
pocket6.Length = 40.5
pocket6.Reversed = True

sketch10 = doc.addObject("Sketcher::SketchObject", "Sketch009")
body.addObject(sketch10)
sketch10.AttachmentSupport = (doc.XY_Plane, [""])
sketch10.MapMode = "FlatFace"
sketch10.AttachmentOffset = App.Placement(Vector(0, 0, -9), App.Rotation())
sketch10.addGeometry([
    Part.Circle(Vector(16, 11, 0), Vector(0, 0, 1), 4),
    Part.Circle(Vector(-16, 11, 0), Vector(0, 0, 1), 4),
    Part.Circle(Vector(16, -11, 0), Vector(0, 0, 1), 4),
    Part.Circle(Vector(-16, -11, 0), Vector(0, 0, 1), 4),
], False)
sketch10.addConstraint([
    Sketcher.Constraint("Equal", 0, 1),
    Sketcher.Constraint("Equal", 1, 2),
    Sketcher.Constraint("Equal", 2, 3),
    Sketcher.Constraint("Symmetric", 1, 3, 2, 3, -1, 1),
    Sketcher.Constraint("Symmetric", 0, 3, 3, 3, -1, 1),
    Sketcher.Constraint("Symmetric", 0, 3, 1, 3, -2),
    Sketcher.Constraint("Diameter", 0, 8.1),
    Sketcher.Constraint("DistanceY", -1, 1, 0, 3, 11.0),
    Sketcher.Constraint("DistanceX", -1, 1, 0, 3, 16.01),
])
pocket7 = doc.addObject("PartDesign::Pocket", "Pocket006")
body.addObject(pocket7)
pocket7.Profile = sketch10
pocket7.Length = 2.4
pocket7.Reversed = True

sketch11 = doc.addObject("Sketcher::SketchObject", "Sketch010")
body.addObject(sketch11)
sketch11.AttachmentSupport = (doc.XZ_Plane, [""])
sketch11.MapMode = "FlatFace"
sketch11.AttachmentOffset = App.Placement(Vector(0, 0, -19.75), App.Rotation())
sketch11.addGeometry([
    Part.LineSegment(Vector(23.1, -3.9, 0), Vector(20.4, 0, 0)),
    Part.LineSegment(Vector(20.4, 0, 0), Vector(29.6, 0, 0)),
    Part.LineSegment(Vector(29.6, 0, 0), Vector(26.9, -3.9, 0)),
    Part.LineSegment(Vector(26.9, -3.9, 0), Vector(23.1, -3.9, 0)),
], False)
sketch11.addConstraint([
    Sketcher.Constraint("Coincident", 0, 2, 1, 1),
    Sketcher.Constraint("Coincident", 1, 2, 2, 1),
    Sketcher.Constraint("Coincident", 2, 2, 3, 1),
    Sketcher.Constraint("Coincident", 3, 2, 0, 1),
    Sketcher.Constraint("Horizontal", 1),
    Sketcher.Constraint("Horizontal", 3),
    Sketcher.Constraint("PointOnObject", 0, 2, -1),
    Sketcher.Constraint("Equal", 0, 2),
    Sketcher.Constraint("Angle", 0, Q("125 deg")),
    Sketcher.Constraint("DistanceX", 3, 2, 3, 1, 3.79),
    Sketcher.Constraint("DistanceX", -1, 1, 1, 2, 29.612501),
    Sketcher.Constraint("Distance", 0, 4.73417),
])
pocket8 = doc.addObject("PartDesign::Pocket", "Pocket007")
body.addObject(pocket8)
pocket8.Profile = sketch11
pocket8.Type = "UpToFirst"
pocket8.Reversed = True

sketch12 = doc.addObject("Sketcher::SketchObject", "Sketch011")
body.addObject(sketch12)
sketch12.AttachmentSupport = (doc.XZ_Plane, [""])
sketch12.MapMode = "FlatFace"
sketch12.AttachmentOffset = App.Placement(Vector(0, 0, -19.75), App.Rotation())
sketch12.addGeometry([
    Part.LineSegment(Vector(-20.4, 0, 0), Vector(-23.1, -3.9, 0)),
    Part.LineSegment(Vector(-23.1, -3.9, 0), Vector(-26.9, -3.9, 0)),
    Part.LineSegment(Vector(-26.9, -3.9, 0), Vector(-29.6, 0, 0)),
    Part.LineSegment(Vector(-29.6, 0, 0), Vector(-20.4, 0, 0)),
], False)
sketch12.addConstraint([
    Sketcher.Constraint("Coincident", 0, 2, 1, 1),
    Sketcher.Constraint("Coincident", 1, 2, 2, 1),
    Sketcher.Constraint("Coincident", 2, 2, 3, 1),
    Sketcher.Constraint("Coincident", 3, 2, 0, 1),
    Sketcher.Constraint("Horizontal", 1),
    Sketcher.Constraint("Horizontal", 3),
    Sketcher.Constraint("PointOnObject", 2, 2, -1),
    Sketcher.Constraint("Equal", 0, 2),
    Sketcher.Constraint("Angle", 0, Q("-125 deg")),
    Sketcher.Constraint("DistanceX", 1, 2, 1, 1, 3.79),
    Sketcher.Constraint("DistanceX", 2, 2, -1, 1, 29.612401),
    Sketcher.Constraint("Distance", 0, 4.73417),
])
pocket9 = doc.addObject("PartDesign::Pocket", "Pocket008")
body.addObject(pocket9)
pocket9.Profile = sketch12
pocket9.Type = "UpToFirst"
pocket9.Reversed = True

sketch13 = doc.addObject("Sketcher::SketchObject", "Sketch012")
body.addObject(sketch13)
sketch13.AttachmentSupport = (doc.YZ_Plane, [""])
sketch13.MapMode = "FlatFace"
sketch13.AttachmentOffset = App.Placement(Vector(0, 0, -34.1), App.Rotation())
sketch13.addGeometry(Part.Circle(Vector(3.9, -25, 0), Vector(0, 0, 1), 4.5), False)
sketch13.addConstraint([
    Sketcher.Constraint("Diameter", 0, 9.0),
    Sketcher.Constraint("DistanceY", 0, 3, -1, 1, 25.0),
    Sketcher.Constraint("DistanceX", -1, 1, 0, 3, 3.9),
])
pocket10 = doc.addObject("PartDesign::Pocket", "Pocket009")
body.addObject(pocket10)
pocket10.Profile = sketch13
pocket10.Type = "UpToFirst"
pocket10.Reversed = True

sketch14 = doc.addObject("Sketcher::SketchObject", "Sketch013")
body.addObject(sketch14)
sketch14.AttachmentSupport = (doc.XZ_Plane, [""])
sketch14.MapMode = "FlatFace"
sketch14.AttachmentOffset = App.Placement(Vector(0, 0, 3.45), App.Rotation())
sketch14.addGeometry(Part.Circle(Vector(-17.5, -15, 0), Vector(0, 0, 1), 1.8), False)
sketch14.addConstraint([
    Sketcher.Constraint("Diameter", 0, 3.6),
    Sketcher.Constraint("DistanceY", 0, 3, -1, 1, 15.0),
    Sketcher.Constraint("DistanceX", 0, 3, -1, 1, 17.4625),
])
pocket11 = doc.addObject("PartDesign::Pocket", "Pocket010")
body.addObject(pocket11)
pocket11.Profile = sketch14
pocket11.Type = "UpToFirst"

sketch15 = doc.addObject("Sketcher::SketchObject", "Sketch014")
body.addObject(sketch15)
sketch15.AttachmentSupport = (doc.XZ_Plane, [""])
sketch15.MapMode = "FlatFace"
sketch15.AttachmentOffset = App.Placement(Vector(0, 0, 3.45), App.Rotation())
sketch15.addGeometry(Part.Circle(Vector(-17.5, -43.8, 0), Vector(0, 0, 1), 1.8), False)
sketch15.addConstraint([
    Sketcher.Constraint("Diameter", 0, 3.6),
    Sketcher.Constraint("DistanceY", 0, 3, -1, 1, 43.75),
    Sketcher.Constraint("DistanceX", 0, 3, -1, 1, 17.4625),
])
pocket12 = doc.addObject("PartDesign::Pocket", "Pocket011")
body.addObject(pocket12)
pocket12.Profile = sketch15
pocket12.Type = "UpToFirst"

sketch16 = doc.addObject("Sketcher::SketchObject", "Sketch015")
body.addObject(sketch16)
sketch16.AttachmentSupport = (doc.XZ_Plane, [""])
sketch16.MapMode = "FlatFace"
sketch16.AttachmentOffset = App.Placement(Vector(0, 0, 3.45), App.Rotation())
sketch16.addGeometry(Part.Circle(Vector(17.5, -15, 0), Vector(0, 0, 1), 1.8), False)
sketch16.addConstraint([
    Sketcher.Constraint("Diameter", 0, 3.6),
    Sketcher.Constraint("DistanceY", 0, 3, -1, 1, 15.0),
    Sketcher.Constraint("DistanceX", -1, 1, 0, 3, 17.4625),
])
pocket13 = doc.addObject("PartDesign::Pocket", "Pocket012")
body.addObject(pocket13)
pocket13.Profile = sketch16
pocket13.Type = "UpToFirst"

sketch17 = doc.addObject("Sketcher::SketchObject", "Sketch016")
body.addObject(sketch17)
sketch17.AttachmentSupport = (doc.XZ_Plane, [""])
sketch17.MapMode = "FlatFace"
sketch17.AttachmentOffset = App.Placement(Vector(0, 0, 3.45), App.Rotation())
sketch17.addGeometry(Part.Circle(Vector(17.5, -43.8, 0), Vector(0, 0, 1), 1.8), False)
sketch17.addConstraint([
    Sketcher.Constraint("Diameter", 0, 3.6),
    Sketcher.Constraint("DistanceY", 0, 3, -1, 1, 43.75),
    Sketcher.Constraint("DistanceX", -1, 1, 0, 3, 17.4625),
])
pocket14 = doc.addObject("PartDesign::Pocket", "Pocket013")
body.addObject(pocket14)
pocket14.Profile = sketch17
pocket14.Type = "UpToFirst"

sketch18 = doc.addObject("Sketcher::SketchObject", "Sketch017")
body.addObject(sketch18)
sketch18.AttachmentSupport = (doc.XZ_Plane, [""])
sketch18.MapMode = "FlatFace"
sketch18.AttachmentOffset = App.Placement(Vector(0, 0, 1.1004), App.Rotation())
sketch18.addGeometry([
    Part.LineSegment(Vector(15.7, -46.7, 0), Vector(19.2, -46.7, 0)),
    Part.LineSegment(Vector(19.2, -46.7, 0), Vector(20.9, -43.8, 0)),
    Part.LineSegment(Vector(20.9, -43.8, 0), Vector(19.2, -40.8, 0)),
    Part.LineSegment(Vector(19.2, -40.8, 0), Vector(15.7, -40.8, 0)),
    Part.LineSegment(Vector(15.7, -40.8, 0), Vector(14, -43.8, 0)),
    Part.LineSegment(Vector(14, -43.8, 0), Vector(15.7, -46.7, 0)),
], False)
sketch18.addConstraint([
    Sketcher.Constraint("Coincident", 0, 2, 1, 1),
    Sketcher.Constraint("Coincident", 1, 2, 2, 1),
    Sketcher.Constraint("Coincident", 2, 2, 3, 1),
    Sketcher.Constraint("Coincident", 3, 2, 4, 1),
    Sketcher.Constraint("Coincident", 4, 2, 5, 1),
    Sketcher.Constraint("Coincident", 5, 2, 0, 1),
    Sketcher.Constraint("Horizontal", 0),
    Sketcher.Constraint("Horizontal", 3),
    Sketcher.Constraint("Parallel", 1, 4),
    Sketcher.Constraint("Parallel", 2, 5),
    Sketcher.Constraint("Horizontal", 1, 2, 4, 2),
    Sketcher.Constraint("Vertical", 0, 2, 2, 2),
    Sketcher.Constraint("Vertical", 3, 2, 5, 2),
    Sketcher.Constraint("Angle", 1, Q("60 deg")),
    Sketcher.Constraint("DistanceY", 1, 2, -1, 1, 43.75),
    Sketcher.Constraint("DistanceX", 0, 1, 0, 2, 3.45015),
    Sketcher.Constraint("DistanceX", 4, 2, 1, 2, 6.9003),
    Sketcher.Constraint("DistanceX", -1, 1, 1, 2, 20.91265),
])
pocket15 = doc.addObject("PartDesign::Pocket", "Pocket014")
body.addObject(pocket15)
pocket15.Profile = sketch18
pocket15.Length = 8.731868

sketch19 = doc.addObject("Sketcher::SketchObject", "Sketch018")
body.addObject(sketch19)
sketch19.AttachmentSupport = (doc.XZ_Plane, [""])
sketch19.MapMode = "FlatFace"
sketch19.AttachmentOffset = App.Placement(Vector(0, 0, 1.1004), App.Rotation())
sketch19.addGeometry([
    Part.LineSegment(Vector(15.7, -18, 0), Vector(19.2, -18, 0)),
    Part.LineSegment(Vector(19.2, -18, 0), Vector(20.9, -15, 0)),
    Part.LineSegment(Vector(20.9, -15, 0), Vector(19.2, -12, 0)),
    Part.LineSegment(Vector(19.2, -12, 0), Vector(15.7, -12, 0)),
    Part.LineSegment(Vector(15.7, -12, 0), Vector(14, -15, 0)),
    Part.LineSegment(Vector(14, -15, 0), Vector(15.7, -18, 0)),
], False)
sketch19.addConstraint([
    Sketcher.Constraint("Coincident", 0, 2, 1, 1),
    Sketcher.Constraint("Coincident", 1, 2, 2, 1),
    Sketcher.Constraint("Coincident", 2, 2, 3, 1),
    Sketcher.Constraint("Coincident", 3, 2, 4, 1),
    Sketcher.Constraint("Coincident", 4, 2, 5, 1),
    Sketcher.Constraint("Coincident", 5, 2, 0, 1),
    Sketcher.Constraint("Horizontal", 0),
    Sketcher.Constraint("Horizontal", 3),
    Sketcher.Constraint("Parallel", 1, 4),
    Sketcher.Constraint("Parallel", 2, 5),
    Sketcher.Constraint("Horizontal", 1, 2, 4, 2),
    Sketcher.Constraint("Vertical", 0, 2, 2, 2),
    Sketcher.Constraint("Vertical", 3, 2, 5, 2),
    Sketcher.Constraint("Angle", 1, Q("60 deg")),
    Sketcher.Constraint("DistanceY", 1, 2, -1, 1, 15.0),
    Sketcher.Constraint("DistanceX", 0, 1, 0, 2, 3.45015),
    Sketcher.Constraint("DistanceX", 4, 2, 1, 2, 6.9003),
    Sketcher.Constraint("DistanceX", -1, 1, 1, 2, 20.91265),
])
pocket16 = doc.addObject("PartDesign::Pocket", "Pocket015")
body.addObject(pocket16)
pocket16.Profile = sketch19
pocket16.Length = 8.731868

sketch20 = doc.addObject("Sketcher::SketchObject", "Sketch019")
body.addObject(sketch20)
sketch20.AttachmentSupport = (doc.XZ_Plane, [""])
sketch20.MapMode = "FlatFace"
sketch20.AttachmentOffset = App.Placement(Vector(0, 0, 1.1004), App.Rotation())
sketch20.addGeometry([
    Part.LineSegment(Vector(-19.2, -18, 0), Vector(-15.7, -18, 0)),
    Part.LineSegment(Vector(-15.7, -18, 0), Vector(-14, -15, 0)),
    Part.LineSegment(Vector(-14, -15, 0), Vector(-15.7, -12, 0)),
    Part.LineSegment(Vector(-15.7, -12, 0), Vector(-19.2, -12, 0)),
    Part.LineSegment(Vector(-19.2, -12, 0), Vector(-20.9, -15, 0)),
    Part.LineSegment(Vector(-20.9, -15, 0), Vector(-19.2, -18, 0)),
], False)
sketch20.addConstraint([
    Sketcher.Constraint("Coincident", 0, 2, 1, 1),
    Sketcher.Constraint("Coincident", 1, 2, 2, 1),
    Sketcher.Constraint("Coincident", 2, 2, 3, 1),
    Sketcher.Constraint("Coincident", 3, 2, 4, 1),
    Sketcher.Constraint("Coincident", 4, 2, 5, 1),
    Sketcher.Constraint("Coincident", 5, 2, 0, 1),
    Sketcher.Constraint("Horizontal", 0),
    Sketcher.Constraint("Horizontal", 3),
    Sketcher.Constraint("Parallel", 1, 4),
    Sketcher.Constraint("Parallel", 2, 5),
    Sketcher.Constraint("Horizontal", 1, 2, 4, 2),
    Sketcher.Constraint("Vertical", 0, 2, 2, 2),
    Sketcher.Constraint("Vertical", 3, 2, 5, 2),
    Sketcher.Constraint("Angle", 1, Q("60 deg")),
    Sketcher.Constraint("DistanceY", 1, 2, -1, 1, 15.0),
    Sketcher.Constraint("DistanceX", 0, 1, 0, 2, 3.45015),
    Sketcher.Constraint("DistanceX", 4, 2, 1, 2, 6.9003),
    Sketcher.Constraint("DistanceX", 1, 2, -1, 1, 14.01235),
])
pocket17 = doc.addObject("PartDesign::Pocket", "Pocket016")
body.addObject(pocket17)
pocket17.Profile = sketch20
pocket17.Length = 9.07951

sketch21 = doc.addObject("Sketcher::SketchObject", "Sketch020")
body.addObject(sketch21)
sketch21.AttachmentSupport = (doc.XZ_Plane, [""])
sketch21.MapMode = "FlatFace"
sketch21.AttachmentOffset = App.Placement(Vector(0, 0, 1.1004), App.Rotation())
sketch21.addGeometry([
    Part.LineSegment(Vector(-15.7, -40.8, 0), Vector(-19.2, -40.8, 0)),
    Part.LineSegment(Vector(-19.2, -40.8, 0), Vector(-20.9, -43.8, 0)),
    Part.LineSegment(Vector(-20.9, -43.8, 0), Vector(-19.2, -46.7, 0)),
    Part.LineSegment(Vector(-19.2, -46.7, 0), Vector(-15.7, -46.7, 0)),
    Part.LineSegment(Vector(-15.7, -46.7, 0), Vector(-14, -43.8, 0)),
    Part.LineSegment(Vector(-14, -43.8, 0), Vector(-15.7, -40.8, 0)),
], False)
sketch21.addConstraint([
    Sketcher.Constraint("Coincident", 0, 2, 1, 1),
    Sketcher.Constraint("Coincident", 1, 2, 2, 1),
    Sketcher.Constraint("Coincident", 2, 2, 3, 1),
    Sketcher.Constraint("Coincident", 3, 2, 4, 1),
    Sketcher.Constraint("Coincident", 4, 2, 5, 1),
    Sketcher.Constraint("Coincident", 5, 2, 0, 1),
    Sketcher.Constraint("Horizontal", 0),
    Sketcher.Constraint("Horizontal", 3),
    Sketcher.Constraint("Parallel", 1, 4),
    Sketcher.Constraint("Parallel", 2, 5),
    Sketcher.Constraint("Horizontal", 1, 2, 4, 2),
    Sketcher.Constraint("Vertical", 0, 2, 2, 2),
    Sketcher.Constraint("Vertical", 3, 2, 5, 2),
    Sketcher.Constraint("Angle", 1, Q("-120 deg")),
    Sketcher.Constraint("DistanceY", 1, 2, -1, 1, 43.75),
    Sketcher.Constraint("DistanceX", 0, 2, 0, 1, 3.45015),
    Sketcher.Constraint("DistanceX", 1, 2, 4, 2, 6.9003),
    Sketcher.Constraint("DistanceX", 1, 2, -1, 1, 20.91265),
])
pocket18 = doc.addObject("PartDesign::Pocket", "Pocket017")
body.addObject(pocket18)
pocket18.Profile = sketch21
pocket18.Length = 8.731868

doc.recompute()
